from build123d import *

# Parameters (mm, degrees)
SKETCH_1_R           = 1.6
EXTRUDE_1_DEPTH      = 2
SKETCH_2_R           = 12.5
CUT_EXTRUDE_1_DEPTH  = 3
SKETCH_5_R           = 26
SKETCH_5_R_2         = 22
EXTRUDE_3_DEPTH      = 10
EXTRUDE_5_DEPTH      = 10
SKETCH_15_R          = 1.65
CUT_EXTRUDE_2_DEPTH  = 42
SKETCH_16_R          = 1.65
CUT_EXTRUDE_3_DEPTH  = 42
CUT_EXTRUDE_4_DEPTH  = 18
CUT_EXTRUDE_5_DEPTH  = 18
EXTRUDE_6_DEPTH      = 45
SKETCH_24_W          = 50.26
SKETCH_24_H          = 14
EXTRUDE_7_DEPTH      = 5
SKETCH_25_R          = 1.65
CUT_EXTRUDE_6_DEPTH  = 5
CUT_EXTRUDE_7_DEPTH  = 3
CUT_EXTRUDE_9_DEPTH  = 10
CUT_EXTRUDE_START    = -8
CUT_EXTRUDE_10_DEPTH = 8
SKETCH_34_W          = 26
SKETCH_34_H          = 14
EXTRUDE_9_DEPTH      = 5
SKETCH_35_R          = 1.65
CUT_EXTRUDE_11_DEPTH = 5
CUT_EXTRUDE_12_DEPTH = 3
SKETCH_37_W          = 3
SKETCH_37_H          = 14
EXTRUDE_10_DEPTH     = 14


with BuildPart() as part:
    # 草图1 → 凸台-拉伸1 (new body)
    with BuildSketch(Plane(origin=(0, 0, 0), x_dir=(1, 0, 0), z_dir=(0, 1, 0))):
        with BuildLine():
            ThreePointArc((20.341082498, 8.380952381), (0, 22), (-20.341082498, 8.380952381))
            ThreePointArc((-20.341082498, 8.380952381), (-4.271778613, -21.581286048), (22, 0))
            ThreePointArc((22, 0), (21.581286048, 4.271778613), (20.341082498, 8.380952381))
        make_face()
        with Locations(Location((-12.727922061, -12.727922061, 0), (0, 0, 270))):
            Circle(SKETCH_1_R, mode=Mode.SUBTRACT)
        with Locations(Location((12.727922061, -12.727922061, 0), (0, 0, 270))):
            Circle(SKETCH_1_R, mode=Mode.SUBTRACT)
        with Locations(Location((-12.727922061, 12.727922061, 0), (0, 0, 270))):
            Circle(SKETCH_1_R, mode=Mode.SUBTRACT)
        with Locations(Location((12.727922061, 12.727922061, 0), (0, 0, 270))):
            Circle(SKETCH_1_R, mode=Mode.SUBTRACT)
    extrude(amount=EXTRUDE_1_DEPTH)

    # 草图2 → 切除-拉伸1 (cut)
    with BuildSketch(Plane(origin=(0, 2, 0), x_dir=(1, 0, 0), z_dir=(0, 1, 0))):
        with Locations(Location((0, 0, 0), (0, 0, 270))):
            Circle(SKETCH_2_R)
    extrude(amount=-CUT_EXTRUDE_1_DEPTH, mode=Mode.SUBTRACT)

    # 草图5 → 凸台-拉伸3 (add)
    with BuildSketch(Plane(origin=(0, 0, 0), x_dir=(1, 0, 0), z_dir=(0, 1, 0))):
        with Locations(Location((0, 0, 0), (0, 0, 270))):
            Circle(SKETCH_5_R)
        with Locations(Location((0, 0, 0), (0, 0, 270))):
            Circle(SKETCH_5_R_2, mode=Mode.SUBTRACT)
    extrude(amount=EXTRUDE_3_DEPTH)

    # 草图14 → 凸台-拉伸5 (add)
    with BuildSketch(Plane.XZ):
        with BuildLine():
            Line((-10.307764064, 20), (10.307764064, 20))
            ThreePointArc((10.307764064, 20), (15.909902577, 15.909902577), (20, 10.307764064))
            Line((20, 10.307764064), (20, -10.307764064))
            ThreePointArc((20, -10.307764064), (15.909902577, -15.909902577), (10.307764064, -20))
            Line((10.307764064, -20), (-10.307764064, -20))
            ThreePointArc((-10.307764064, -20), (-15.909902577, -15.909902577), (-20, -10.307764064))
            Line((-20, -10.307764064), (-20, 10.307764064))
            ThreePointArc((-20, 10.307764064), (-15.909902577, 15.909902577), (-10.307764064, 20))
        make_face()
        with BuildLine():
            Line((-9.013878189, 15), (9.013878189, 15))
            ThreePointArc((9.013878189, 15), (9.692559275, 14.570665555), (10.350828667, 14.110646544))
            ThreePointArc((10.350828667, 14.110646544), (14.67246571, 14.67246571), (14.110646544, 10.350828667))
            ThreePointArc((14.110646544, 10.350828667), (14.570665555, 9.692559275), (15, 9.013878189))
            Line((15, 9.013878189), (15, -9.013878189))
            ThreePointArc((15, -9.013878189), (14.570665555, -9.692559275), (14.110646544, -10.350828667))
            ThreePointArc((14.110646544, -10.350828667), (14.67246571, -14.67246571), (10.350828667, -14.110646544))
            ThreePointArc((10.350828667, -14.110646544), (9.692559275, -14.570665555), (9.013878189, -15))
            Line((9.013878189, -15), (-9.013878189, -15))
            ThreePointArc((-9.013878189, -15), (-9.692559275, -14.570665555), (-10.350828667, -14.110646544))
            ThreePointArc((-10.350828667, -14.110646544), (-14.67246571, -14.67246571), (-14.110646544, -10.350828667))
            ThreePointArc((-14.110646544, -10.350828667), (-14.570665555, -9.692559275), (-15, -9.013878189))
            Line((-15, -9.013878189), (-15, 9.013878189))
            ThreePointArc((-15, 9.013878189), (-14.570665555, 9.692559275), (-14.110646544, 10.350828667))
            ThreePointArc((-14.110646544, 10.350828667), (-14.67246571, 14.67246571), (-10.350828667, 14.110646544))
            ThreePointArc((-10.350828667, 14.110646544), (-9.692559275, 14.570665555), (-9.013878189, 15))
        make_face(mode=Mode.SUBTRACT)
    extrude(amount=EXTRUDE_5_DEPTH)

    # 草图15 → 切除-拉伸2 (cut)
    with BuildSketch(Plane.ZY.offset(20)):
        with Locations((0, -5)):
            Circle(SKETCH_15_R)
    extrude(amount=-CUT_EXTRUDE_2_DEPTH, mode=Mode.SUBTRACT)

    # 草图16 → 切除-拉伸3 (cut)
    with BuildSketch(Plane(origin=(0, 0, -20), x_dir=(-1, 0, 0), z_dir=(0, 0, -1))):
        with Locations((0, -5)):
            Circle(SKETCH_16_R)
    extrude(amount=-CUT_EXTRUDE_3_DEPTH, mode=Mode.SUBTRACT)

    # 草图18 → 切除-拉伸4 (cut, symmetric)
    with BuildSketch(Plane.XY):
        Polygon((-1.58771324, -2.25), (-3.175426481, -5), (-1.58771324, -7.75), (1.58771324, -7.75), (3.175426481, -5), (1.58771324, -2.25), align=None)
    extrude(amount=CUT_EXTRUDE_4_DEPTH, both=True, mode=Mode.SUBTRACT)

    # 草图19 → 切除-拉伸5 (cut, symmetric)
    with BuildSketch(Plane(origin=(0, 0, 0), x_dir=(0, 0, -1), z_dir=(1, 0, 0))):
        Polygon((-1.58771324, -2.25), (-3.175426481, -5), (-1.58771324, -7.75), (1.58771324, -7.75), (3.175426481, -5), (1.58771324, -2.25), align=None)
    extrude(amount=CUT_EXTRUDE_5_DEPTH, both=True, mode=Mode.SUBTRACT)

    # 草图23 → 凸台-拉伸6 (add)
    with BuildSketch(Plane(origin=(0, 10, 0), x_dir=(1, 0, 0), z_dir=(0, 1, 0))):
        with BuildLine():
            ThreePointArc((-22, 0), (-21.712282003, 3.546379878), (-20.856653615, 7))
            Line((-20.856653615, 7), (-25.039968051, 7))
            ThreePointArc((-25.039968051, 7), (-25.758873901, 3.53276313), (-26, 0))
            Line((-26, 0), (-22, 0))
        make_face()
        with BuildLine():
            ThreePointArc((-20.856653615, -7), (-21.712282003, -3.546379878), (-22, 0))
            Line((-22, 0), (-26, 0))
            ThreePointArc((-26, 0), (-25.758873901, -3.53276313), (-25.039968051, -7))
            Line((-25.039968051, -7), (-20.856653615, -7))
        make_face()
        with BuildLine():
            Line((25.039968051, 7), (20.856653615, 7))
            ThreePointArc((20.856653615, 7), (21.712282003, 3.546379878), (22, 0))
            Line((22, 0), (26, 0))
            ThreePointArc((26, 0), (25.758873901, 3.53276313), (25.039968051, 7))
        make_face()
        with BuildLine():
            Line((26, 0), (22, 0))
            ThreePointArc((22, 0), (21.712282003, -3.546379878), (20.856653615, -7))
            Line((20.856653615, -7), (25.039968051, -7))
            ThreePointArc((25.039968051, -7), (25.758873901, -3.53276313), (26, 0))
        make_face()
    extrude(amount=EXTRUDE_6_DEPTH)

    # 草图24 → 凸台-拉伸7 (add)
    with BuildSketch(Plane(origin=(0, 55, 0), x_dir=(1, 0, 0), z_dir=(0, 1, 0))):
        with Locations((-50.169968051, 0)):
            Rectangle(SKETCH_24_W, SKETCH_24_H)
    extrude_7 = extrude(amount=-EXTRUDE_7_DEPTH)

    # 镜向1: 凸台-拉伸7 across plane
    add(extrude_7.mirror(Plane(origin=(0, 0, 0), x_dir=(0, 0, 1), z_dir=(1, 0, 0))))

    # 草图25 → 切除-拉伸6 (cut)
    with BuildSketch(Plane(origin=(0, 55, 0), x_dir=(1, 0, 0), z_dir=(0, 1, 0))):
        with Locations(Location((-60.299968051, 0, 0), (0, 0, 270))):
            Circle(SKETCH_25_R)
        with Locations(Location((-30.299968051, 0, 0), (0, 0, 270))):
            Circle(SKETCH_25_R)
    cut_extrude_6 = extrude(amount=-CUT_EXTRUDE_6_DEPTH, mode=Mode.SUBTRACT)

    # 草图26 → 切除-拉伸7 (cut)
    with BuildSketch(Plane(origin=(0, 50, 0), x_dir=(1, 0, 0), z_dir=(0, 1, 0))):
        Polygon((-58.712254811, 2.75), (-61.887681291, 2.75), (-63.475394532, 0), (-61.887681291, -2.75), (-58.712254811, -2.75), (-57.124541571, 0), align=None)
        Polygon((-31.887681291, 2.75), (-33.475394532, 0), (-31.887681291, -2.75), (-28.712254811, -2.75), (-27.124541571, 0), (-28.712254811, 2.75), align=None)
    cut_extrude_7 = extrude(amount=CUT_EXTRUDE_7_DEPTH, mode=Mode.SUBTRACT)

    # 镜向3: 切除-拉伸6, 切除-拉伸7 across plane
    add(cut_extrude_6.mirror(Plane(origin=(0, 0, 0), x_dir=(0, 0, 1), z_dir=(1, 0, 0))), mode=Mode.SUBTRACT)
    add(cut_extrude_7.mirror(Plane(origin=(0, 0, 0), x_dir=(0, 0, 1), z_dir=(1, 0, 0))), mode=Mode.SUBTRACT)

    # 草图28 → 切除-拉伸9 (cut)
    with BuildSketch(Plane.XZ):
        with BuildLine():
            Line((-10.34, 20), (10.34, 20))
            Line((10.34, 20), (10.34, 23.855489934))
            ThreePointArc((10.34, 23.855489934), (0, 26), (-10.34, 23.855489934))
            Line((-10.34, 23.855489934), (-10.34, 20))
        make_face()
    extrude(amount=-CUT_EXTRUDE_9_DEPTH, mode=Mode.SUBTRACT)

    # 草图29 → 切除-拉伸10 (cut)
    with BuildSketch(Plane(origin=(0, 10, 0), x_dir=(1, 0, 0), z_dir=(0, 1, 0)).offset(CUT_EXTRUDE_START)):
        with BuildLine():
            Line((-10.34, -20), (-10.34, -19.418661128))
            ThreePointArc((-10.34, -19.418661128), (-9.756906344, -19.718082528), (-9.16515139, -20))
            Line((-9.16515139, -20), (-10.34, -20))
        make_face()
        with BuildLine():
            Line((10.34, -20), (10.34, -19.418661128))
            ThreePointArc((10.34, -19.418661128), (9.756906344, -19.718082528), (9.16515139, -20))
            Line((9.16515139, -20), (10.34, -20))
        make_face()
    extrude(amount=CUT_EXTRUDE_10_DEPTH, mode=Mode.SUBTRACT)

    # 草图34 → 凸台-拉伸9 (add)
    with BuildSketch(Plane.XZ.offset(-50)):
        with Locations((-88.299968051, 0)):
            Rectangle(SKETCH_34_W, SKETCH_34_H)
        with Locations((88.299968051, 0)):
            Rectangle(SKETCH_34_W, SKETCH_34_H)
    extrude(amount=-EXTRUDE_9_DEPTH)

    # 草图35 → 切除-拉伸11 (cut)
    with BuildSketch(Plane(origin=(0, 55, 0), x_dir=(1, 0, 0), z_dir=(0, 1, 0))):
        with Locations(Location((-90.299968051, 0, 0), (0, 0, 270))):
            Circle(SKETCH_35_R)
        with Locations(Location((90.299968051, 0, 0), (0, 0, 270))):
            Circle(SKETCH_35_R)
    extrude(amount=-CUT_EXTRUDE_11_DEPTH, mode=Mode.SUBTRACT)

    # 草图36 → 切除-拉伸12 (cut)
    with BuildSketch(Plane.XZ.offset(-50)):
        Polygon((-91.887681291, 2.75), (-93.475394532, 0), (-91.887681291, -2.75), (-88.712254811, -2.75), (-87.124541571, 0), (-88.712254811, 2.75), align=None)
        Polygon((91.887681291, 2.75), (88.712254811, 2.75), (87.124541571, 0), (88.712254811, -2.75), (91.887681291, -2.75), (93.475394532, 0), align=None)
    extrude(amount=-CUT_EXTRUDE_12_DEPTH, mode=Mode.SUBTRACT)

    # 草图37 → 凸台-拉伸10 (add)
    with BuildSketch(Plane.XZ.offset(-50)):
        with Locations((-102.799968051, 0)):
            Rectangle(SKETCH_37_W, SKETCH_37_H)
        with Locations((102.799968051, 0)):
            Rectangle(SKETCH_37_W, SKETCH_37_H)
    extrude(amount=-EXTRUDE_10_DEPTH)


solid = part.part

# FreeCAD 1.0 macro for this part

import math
import FreeCAD as App
import Part
import Sketcher
from FreeCAD import Vector
Q = App.Units.Quantity

doc = App.newDocument("Part")
body = doc.addObject("PartDesign::Body", "Body")

# Sketch on XZ plane
sketch1 = body.newObject("Sketcher::SketchObject", "Sketch")
sketch1.AttachmentSupport = (doc.getObject("XZ_Plane"), [""])
sketch1.MapMode = "FlatFace"
sketch1.addGeometry(Part.ArcOfCircle(Part.Circle(Vector(0, 0, 0), Vector(0, 0, 1), 22), math.radians(-158), math.radians(-22)), False)
sketch1.addGeometry(Part.ArcOfCircle(Part.Circle(Vector(0, 0, 0), Vector(0, 0, 1), 22), math.radians(0), math.radians(202)), False)
sketch1.addGeometry(Part.ArcOfCircle(Part.Circle(Vector(0, 0, 0), Vector(0, 0, 1), 22), math.radians(-22), math.radians(0)), False)
sketch1.addGeometry(Part.Circle(Vector(-12.7, 12.7, 0), Vector(0, 0, 1), 1.6), False)
sketch1.addGeometry(Part.Circle(Vector(12.7, 12.7, 0), Vector(0, 0, 1), 1.6), False)
sketch1.addGeometry(Part.Circle(Vector(-12.7, -12.7, 0), Vector(0, 0, 1), 1.6), False)
sketch1.addGeometry(Part.Circle(Vector(12.7, -12.7, 0), Vector(0, 0, 1), 1.6), False)
sketch1.addConstraint(Sketcher.Constraint("Tangent", 0, 1, 1, 2))
sketch1.addConstraint(Sketcher.Constraint("Tangent", 1, 1, 2, 2))
sketch1.addConstraint(Sketcher.Constraint("Tangent", 2, 1, 0, 2))
sketch1.addConstraint(Sketcher.Constraint("Coincident", 0, 3, -1, 1))
sketch1.addConstraint(Sketcher.Constraint("Equal", 3, 4))
sketch1.addConstraint(Sketcher.Constraint("Equal", 4, 5))
sketch1.addConstraint(Sketcher.Constraint("Equal", 5, 6))
sketch1.addConstraint(Sketcher.Constraint("Symmetric", 4, 3, 5, 3, -1, 1))
sketch1.addConstraint(Sketcher.Constraint("Symmetric", 3, 3, 6, 3, -1, 1))
sketch1.addConstraint(Sketcher.Constraint("Symmetric", 3, 3, 4, 3, -2))
sketch1.addConstraint(Sketcher.Constraint("PointOnObject", 1, 1, -1))
sketch1.addConstraint(Sketcher.Constraint("Horizontal", 0, 1, 2, 1))
sketch1.addConstraint(Sketcher.Constraint("Radius", 0, Q("22 mm")))
sketch1.addConstraint(Sketcher.Constraint("Diameter", 3, Q("3.2 mm")))
sketch1.addConstraint(Sketcher.Constraint("DistanceX", 0, 1, 5, 3, Q("7.61316 mm")))
sketch1.addConstraint(Sketcher.Constraint("DistanceY", 5, 3, 0, 1, Q("4.34697 mm")))
sketch1.addConstraint(Sketcher.Constraint("DistanceX", 3, 3, -1, 1, Q("12.727922 mm")))
pad1 = body.newObject("PartDesign::Pad", "Pad")
pad1.Profile = sketch1
pad1.Length = 2
pad1.Reversed = True

# Sketch on XZ plane
sketch2 = body.newObject("Sketcher::SketchObject", "Sketch001")
sketch2.AttachmentSupport = (doc.getObject("XZ_Plane"), [""])
sketch2.MapMode = "FlatFace"
sketch2.AttachmentOffset = App.Placement(Vector(0, 0, -2), App.Rotation())
sketch2.addGeometry(Part.Circle(Vector(0, 0, 0), Vector(0, 0, 1), 12), False)
sketch2.addConstraint(Sketcher.Constraint("Coincident", 0, 3, -1, 1))
sketch2.addConstraint(Sketcher.Constraint("Diameter", 0, Q("25 mm")))
pocket1 = body.newObject("PartDesign::Pocket", "Pocket")
pocket1.Profile = sketch2
pocket1.Length = 3
pocket1.Reversed = True

# Sketch on XZ plane
sketch3 = body.newObject("Sketcher::SketchObject", "Sketch002")
sketch3.AttachmentSupport = (doc.getObject("XZ_Plane"), [""])
sketch3.MapMode = "FlatFace"
sketch3.addGeometry(Part.Circle(Vector(0, 0, 0), Vector(0, 0, 1), 26), False)
sketch3.addGeometry(Part.Circle(Vector(0, 0, 0), Vector(0, 0, 1), 22), False)
sketch3.addConstraint(Sketcher.Constraint("Coincident", 0, 3, -1, 1))
sketch3.addConstraint(Sketcher.Constraint("Coincident", 1, 3, -1, 1))
sketch3.addConstraint(Sketcher.Constraint("Diameter", 0, Q("52 mm")))
sketch3.addConstraint(Sketcher.Constraint("Diameter", 1, Q("44 mm")))
pad2 = body.newObject("PartDesign::Pad", "Pad001")
pad2.Profile = sketch3
pad2.Length = 10
pad2.Reversed = True

# Sketch on XZ plane
sketch4 = body.newObject("Sketcher::SketchObject", "Sketch003")
sketch4.AttachmentSupport = (doc.getObject("XZ_Plane"), [""])
sketch4.MapMode = "FlatFace"
sketch4.addGeometry(Part.LineSegment(Vector(10.3, 20, 0), Vector(-10.3, 20, 0)), False)
sketch4.addGeometry(Part.ArcOfCircle(Part.Circle(Vector(0, 0, 0), Vector(0, 0, 1), 22.5), math.radians(117), math.radians(153)), False)
sketch4.addGeometry(Part.LineSegment(Vector(-20, 10.3, 0), Vector(-20, -10.3, 0)), False)
sketch4.addGeometry(Part.ArcOfCircle(Part.Circle(Vector(0, 0, 0), Vector(0, 0, 1), 22.5), math.radians(-153), math.radians(-117)), False)
sketch4.addGeometry(Part.LineSegment(Vector(-10.3, -20, 0), Vector(10.3, -20, 0)), False)
sketch4.addGeometry(Part.ArcOfCircle(Part.Circle(Vector(0, 0, 0), Vector(0, 0, 1), 22.5), math.radians(-63), math.radians(-27)), False)
sketch4.addGeometry(Part.LineSegment(Vector(20, -10.3, 0), Vector(20, 10.3, 0)), False)
sketch4.addGeometry(Part.ArcOfCircle(Part.Circle(Vector(0, 0, 0), Vector(0, 0, 1), 22.5), math.radians(27), math.radians(63)), False)
sketch4.addGeometry(Part.LineSegment(Vector(-9, 15, 0), Vector(9, 15, 0)), False)
sketch4.addGeometry(Part.ArcOfCircle(Part.Circle(Vector(0, 0, 0), Vector(0, 0, 1), 17.5), math.radians(53.74), math.radians(59)), False)
sketch4.addGeometry(Part.ArcOfCircle(Part.Circle(Vector(12.7, 12.7, 0), Vector(0, 0, 1), 2.8), math.radians(-60), math.radians(150)), False)
sketch4.addGeometry(Part.ArcOfCircle(Part.Circle(Vector(0, 0, 0), Vector(0, 0, 1), 17.5), math.radians(31), math.radians(36.26)), False)
sketch4.addGeometry(Part.LineSegment(Vector(15, 9, 0), Vector(15, -9, 0)), False)
sketch4.addGeometry(Part.ArcOfCircle(Part.Circle(Vector(0, 0, 0), Vector(0, 0, 1), 17.5), math.radians(-36.26), math.radians(-31)), False)
sketch4.addGeometry(Part.ArcOfCircle(Part.Circle(Vector(12.7, -12.7, 0), Vector(0, 0, 1), 2.8), math.radians(-150), math.radians(60)), False)
sketch4.addGeometry(Part.ArcOfCircle(Part.Circle(Vector(0, 0, 0), Vector(0, 0, 1), 17.5), math.radians(-59), math.radians(-53.74)), False)
sketch4.addGeometry(Part.LineSegment(Vector(9, -15, 0), Vector(-9, -15, 0)), False)
sketch4.addGeometry(Part.ArcOfCircle(Part.Circle(Vector(0, 0, 0), Vector(0, 0, 1), 17.5), math.radians(-126.26), math.radians(-121)), False)
sketch4.addGeometry(Part.ArcOfCircle(Part.Circle(Vector(-12.7, -12.7, 0), Vector(0, 0, 1), 2.8), math.radians(120), math.radians(330)), False)
sketch4.addGeometry(Part.ArcOfCircle(Part.Circle(Vector(0, 0, 0), Vector(0, 0, 1), 17.5), math.radians(-149), math.radians(-143.74)), False)
sketch4.addGeometry(Part.LineSegment(Vector(-15, -9, 0), Vector(-15, 9, 0)), False)
sketch4.addGeometry(Part.ArcOfCircle(Part.Circle(Vector(0, 0, 0), Vector(0, 0, 1), 17.5), math.radians(143.74), math.radians(149)), False)
sketch4.addGeometry(Part.ArcOfCircle(Part.Circle(Vector(-12.7, 12.7, 0), Vector(0, 0, 1), 2.8), math.radians(30), math.radians(240)), False)
sketch4.addGeometry(Part.ArcOfCircle(Part.Circle(Vector(0, 0, 0), Vector(0, 0, 1), 17.5), math.radians(121), math.radians(126.26)), False)
sketch4.addConstraint(Sketcher.Constraint("Coincident", 0, 2, 1, 1))
sketch4.addConstraint(Sketcher.Constraint("Coincident", 1, 2, 2, 1))
sketch4.addConstraint(Sketcher.Constraint("Coincident", 2, 2, 3, 1))
sketch4.addConstraint(Sketcher.Constraint("Coincident", 3, 2, 4, 1))
sketch4.addConstraint(Sketcher.Constraint("Coincident", 4, 2, 5, 1))
sketch4.addConstraint(Sketcher.Constraint("Coincident", 5, 2, 6, 1))
sketch4.addConstraint(Sketcher.Constraint("Coincident", 6, 2, 7, 1))
sketch4.addConstraint(Sketcher.Constraint("Coincident", 7, 2, 0, 1))
sketch4.addConstraint(Sketcher.Constraint("Coincident", 8, 2, 9, 2))
sketch4.addConstraint(Sketcher.Constraint("Coincident", 9, 1, 10, 2))
sketch4.addConstraint(Sketcher.Constraint("Coincident", 10, 1, 11, 2))
sketch4.addConstraint(Sketcher.Constraint("Coincident", 11, 1, 12, 1))
sketch4.addConstraint(Sketcher.Constraint("Coincident", 12, 2, 13, 2))
sketch4.addConstraint(Sketcher.Constraint("Coincident", 13, 1, 14, 2))
sketch4.addConstraint(Sketcher.Constraint("Coincident", 14, 1, 15, 2))
sketch4.addConstraint(Sketcher.Constraint("Coincident", 15, 1, 16, 1))
sketch4.addConstraint(Sketcher.Constraint("Coincident", 16, 2, 17, 2))
sketch4.addConstraint(Sketcher.Constraint("Coincident", 17, 1, 18, 2))
sketch4.addConstraint(Sketcher.Constraint("Coincident", 18, 1, 19, 2))
sketch4.addConstraint(Sketcher.Constraint("Coincident", 19, 1, 20, 1))
sketch4.addConstraint(Sketcher.Constraint("Coincident", 20, 2, 21, 2))
sketch4.addConstraint(Sketcher.Constraint("Coincident", 21, 1, 22, 2))
sketch4.addConstraint(Sketcher.Constraint("Coincident", 22, 1, 23, 2))
sketch4.addConstraint(Sketcher.Constraint("Coincident", 23, 1, 8, 1))
sketch4.addConstraint(Sketcher.Constraint("Horizontal", 0))
sketch4.addConstraint(Sketcher.Constraint("Vertical", 2))
sketch4.addConstraint(Sketcher.Constraint("Horizontal", 4))
sketch4.addConstraint(Sketcher.Constraint("Vertical", 6))
sketch4.addConstraint(Sketcher.Constraint("Horizontal", 8))
sketch4.addConstraint(Sketcher.Constraint("Vertical", 12))
sketch4.addConstraint(Sketcher.Constraint("Horizontal", 16))
sketch4.addConstraint(Sketcher.Constraint("Vertical", 20))
sketch4.addConstraint(Sketcher.Constraint("Coincident", 1, 3, -1, 1))
sketch4.addConstraint(Sketcher.Constraint("Coincident", 3, 3, -1, 1))
sketch4.addConstraint(Sketcher.Constraint("Coincident", 5, 3, -1, 1))
sketch4.addConstraint(Sketcher.Constraint("Coincident", 7, 3, -1, 1))
sketch4.addConstraint(Sketcher.Constraint("Coincident", 9, 3, -1, 1))
sketch4.addConstraint(Sketcher.Constraint("Coincident", 11, 3, -1, 1))
sketch4.addConstraint(Sketcher.Constraint("Coincident", 13, 3, -1, 1))
sketch4.addConstraint(Sketcher.Constraint("Coincident", 15, 3, -1, 1))
sketch4.addConstraint(Sketcher.Constraint("Coincident", 17, 3, -1, 1))
sketch4.addConstraint(Sketcher.Constraint("Coincident", 19, 3, -1, 1))
sketch4.addConstraint(Sketcher.Constraint("Coincident", 21, 3, -1, 1))
sketch4.addConstraint(Sketcher.Constraint("Coincident", 23, 3, -1, 1))
sketch4.addConstraint(Sketcher.Constraint("Equal", 1, 3))
sketch4.addConstraint(Sketcher.Constraint("Equal", 3, 5))
sketch4.addConstraint(Sketcher.Constraint("Equal", 5, 7))
sketch4.addConstraint(Sketcher.Constraint("Equal", 9, 11))
sketch4.addConstraint(Sketcher.Constraint("Equal", 11, 13))
sketch4.addConstraint(Sketcher.Constraint("Equal", 10, 14))
sketch4.addConstraint(Sketcher.Constraint("Equal", 13, 15))
sketch4.addConstraint(Sketcher.Constraint("Equal", 15, 17))
sketch4.addConstraint(Sketcher.Constraint("Equal", 14, 18))
sketch4.addConstraint(Sketcher.Constraint("Equal", 17, 19))
sketch4.addConstraint(Sketcher.Constraint("Equal", 19, 21))
sketch4.addConstraint(Sketcher.Constraint("Equal", 18, 22))
sketch4.addConstraint(Sketcher.Constraint("Equal", 21, 23))
sketch4.addConstraint(Sketcher.Constraint("Symmetric", 10, 3, 18, 3, -1, 1))
sketch4.addConstraint(Sketcher.Constraint("Symmetric", 14, 3, 22, 3, -1, 1))
sketch4.addConstraint(Sketcher.Constraint("Symmetric", 14, 3, 18, 3, -2))
sketch4.addConstraint(Sketcher.Constraint("Horizontal", 2, 2, 5, 2))
sketch4.addConstraint(Sketcher.Constraint("Horizontal", 12, 2, 19, 1))
sketch4.addConstraint(Sketcher.Constraint("Vertical", 0, 2, 3, 2))
sketch4.addConstraint(Sketcher.Constraint("Vertical", 8, 2, 15, 1))
sketch4.addConstraint(Sketcher.Constraint("Equal", 4, 2))
sketch4.addConstraint(Sketcher.Constraint("Equal", 16, 12))
sketch4.addConstraint(Sketcher.Constraint("Radius", 1, Q("22.5 mm")))
sketch4.addConstraint(Sketcher.Constraint("Radius", 9, Q("17.499999 mm")))
sketch4.addConstraint(Sketcher.Constraint("Radius", 10, Q("2.75 mm")))
sketch4.addConstraint(Sketcher.Constraint("DistanceY", -1, 1, 0, 2, Q("20 mm")))
sketch4.addConstraint(Sketcher.Constraint("DistanceY", -1, 1, 8, 2, Q("15 mm")))
sketch4.addConstraint(Sketcher.Constraint("DistanceX", -1, 1, 9, 1, Q("10.350829 mm")))
sketch4.addConstraint(Sketcher.Constraint("DistanceY", -1, 1, 10, 1, Q("10.350829 mm")))
pad3 = body.newObject("PartDesign::Pad", "Pad002")
pad3.Profile = sketch4
pad3.Length = 10

# Sketch on YZ plane
sketch5 = body.newObject("Sketcher::SketchObject", "Sketch004")
sketch5.AttachmentSupport = (doc.getObject("YZ_Plane"), [""])
sketch5.MapMode = "FlatFace"
sketch5.AttachmentOffset = App.Placement(Vector(0, 0, -20), App.Rotation())
sketch5.addGeometry(Part.Circle(Vector(-5, 0, 0), Vector(0, 0, 1), 1.6), False)
sketch5.addConstraint(Sketcher.Constraint("PointOnObject", 0, 3, -1))
sketch5.addConstraint(Sketcher.Constraint("Diameter", 0, Q("3.3 mm")))
sketch5.addConstraint(Sketcher.Constraint("DistanceX", 0, 3, -1, 1, Q("5 mm")))
pocket2 = body.newObject("PartDesign::Pocket", "Pocket001")
pocket2.Profile = sketch5
pocket2.Length = 42
pocket2.Reversed = True

# Sketch on XY plane
sketch6 = body.newObject("Sketcher::SketchObject", "Sketch005")
sketch6.AttachmentSupport = (doc.getObject("XY_Plane"), [""])
sketch6.MapMode = "FlatFace"
sketch6.AttachmentOffset = App.Placement(Vector(0, 0, -20), App.Rotation())
sketch6.addGeometry(Part.Circle(Vector(0, -5, 0), Vector(0, 0, 1), 1.6), False)
sketch6.addConstraint(Sketcher.Constraint("PointOnObject", 0, 3, -2))
sketch6.addConstraint(Sketcher.Constraint("Diameter", 0, Q("3.3 mm")))
sketch6.addConstraint(Sketcher.Constraint("DistanceY", 0, 3, -1, 1, Q("5 mm")))
pocket3 = body.newObject("PartDesign::Pocket", "Pocket002")
pocket3.Profile = sketch6
pocket3.Length = 42
pocket3.Reversed = True

# Sketch on XY plane
sketch7 = body.newObject("Sketcher::SketchObject", "Sketch006")
sketch7.AttachmentSupport = (doc.getObject("XY_Plane"), [""])
sketch7.MapMode = "FlatFace"
sketch7.addGeometry(Part.LineSegment(Vector(-1.6, -2.2, 0), Vector(-3.2, -5, 0)), False)
sketch7.addGeometry(Part.LineSegment(Vector(-3.2, -5, 0), Vector(-1.6, -7.8, 0)), False)
sketch7.addGeometry(Part.LineSegment(Vector(-1.6, -7.8, 0), Vector(1.6, -7.8, 0)), False)
sketch7.addGeometry(Part.LineSegment(Vector(1.6, -7.8, 0), Vector(3.2, -5, 0)), False)
sketch7.addGeometry(Part.LineSegment(Vector(3.2, -5, 0), Vector(1.6, -2.2, 0)), False)
sketch7.addGeometry(Part.LineSegment(Vector(1.6, -2.2, 0), Vector(-1.6, -2.2, 0)), False)
sketch7.addConstraint(Sketcher.Constraint("Coincident", 0, 2, 1, 1))
sketch7.addConstraint(Sketcher.Constraint("Coincident", 1, 2, 2, 1))
sketch7.addConstraint(Sketcher.Constraint("Coincident", 2, 2, 3, 1))
sketch7.addConstraint(Sketcher.Constraint("Coincident", 3, 2, 4, 1))
sketch7.addConstraint(Sketcher.Constraint("Coincident", 4, 2, 5, 1))
sketch7.addConstraint(Sketcher.Constraint("Coincident", 5, 2, 0, 1))
sketch7.addConstraint(Sketcher.Constraint("Horizontal", 2))
sketch7.addConstraint(Sketcher.Constraint("Horizontal", 5))
sketch7.addConstraint(Sketcher.Constraint("Symmetric", 0, 2, 3, 2, -2))
sketch7.addConstraint(Sketcher.Constraint("Parallel", 0, 3))
sketch7.addConstraint(Sketcher.Constraint("Parallel", 1, 4))
sketch7.addConstraint(Sketcher.Constraint("Vertical", 2, 2, 4, 2))
sketch7.addConstraint(Sketcher.Constraint("Vertical", 1, 2, 5, 2))
sketch7.addConstraint(Sketcher.Constraint("Angle", 0, Q("-120 deg")))
sketch7.addConstraint(Sketcher.Constraint("DistanceY", 0, 2, -1, 1, Q("5 mm")))
sketch7.addConstraint(Sketcher.Constraint("DistanceY", 2, 2, 4, 2, Q("5.5 mm")))
sketch7.addConstraint(Sketcher.Constraint("DistanceX", 2, 1, 2, 2, Q("3.175426 mm")))
pocket4 = body.newObject("PartDesign::Pocket", "Pocket003")
pocket4.Profile = sketch7
pocket4.Length = 36
pocket4.Midplane = True

# Sketch on YZ plane
sketch8 = body.newObject("Sketcher::SketchObject", "Sketch007")
sketch8.AttachmentSupport = (doc.getObject("YZ_Plane"), [""])
sketch8.MapMode = "FlatFace"
sketch8.addGeometry(Part.LineSegment(Vector(-2.2, 1.6, 0), Vector(-5, 3.2, 0)), False)
sketch8.addGeometry(Part.LineSegment(Vector(-5, 3.2, 0), Vector(-7.8, 1.6, 0)), False)
sketch8.addGeometry(Part.LineSegment(Vector(-7.8, 1.6, 0), Vector(-7.8, -1.6, 0)), False)
sketch8.addGeometry(Part.LineSegment(Vector(-7.8, -1.6, 0), Vector(-5, -3.2, 0)), False)
sketch8.addGeometry(Part.LineSegment(Vector(-5, -3.2, 0), Vector(-2.2, -1.6, 0)), False)
sketch8.addGeometry(Part.LineSegment(Vector(-2.2, -1.6, 0), Vector(-2.2, 1.6, 0)), False)
sketch8.addConstraint(Sketcher.Constraint("Coincident", 0, 2, 1, 1))
sketch8.addConstraint(Sketcher.Constraint("Coincident", 1, 2, 2, 1))
sketch8.addConstraint(Sketcher.Constraint("Coincident", 2, 2, 3, 1))
sketch8.addConstraint(Sketcher.Constraint("Coincident", 3, 2, 4, 1))
sketch8.addConstraint(Sketcher.Constraint("Coincident", 4, 2, 5, 1))
sketch8.addConstraint(Sketcher.Constraint("Coincident", 5, 2, 0, 1))
sketch8.addConstraint(Sketcher.Constraint("Vertical", 2))
sketch8.addConstraint(Sketcher.Constraint("Vertical", 5))
sketch8.addConstraint(Sketcher.Constraint("Symmetric", 0, 2, 3, 2, -1))
sketch8.addConstraint(Sketcher.Constraint("Parallel", 0, 3))
sketch8.addConstraint(Sketcher.Constraint("Parallel", 1, 4))
sketch8.addConstraint(Sketcher.Constraint("Horizontal", 2, 2, 4, 2))
sketch8.addConstraint(Sketcher.Constraint("Horizontal", 1, 2, 5, 2))
sketch8.addConstraint(Sketcher.Constraint("Angle", 0, Q("150 deg")))
sketch8.addConstraint(Sketcher.Constraint("DistanceX", 0, 2, -1, 1, Q("5 mm")))
sketch8.addConstraint(Sketcher.Constraint("DistanceX", 2, 2, 4, 2, Q("5.5 mm")))
sketch8.addConstraint(Sketcher.Constraint("DistanceY", 2, 2, 2, 1, Q("3.175426 mm")))
pocket5 = body.newObject("PartDesign::Pocket", "Pocket004")
pocket5.Profile = sketch8
pocket5.Length = 36
pocket5.Midplane = True

# Sketch on XZ plane
sketch9 = body.newObject("Sketcher::SketchObject", "Sketch008")
sketch9.AttachmentSupport = (doc.getObject("XZ_Plane"), [""])
sketch9.MapMode = "FlatFace"
sketch9.AttachmentOffset = App.Placement(Vector(0, 0, -10), App.Rotation())
sketch9.addGeometry(Part.ArcOfCircle(Part.Circle(Vector(0, 0, 0), Vector(0, 0, 1), 22), math.radians(180), math.radians(198.55)), False)
sketch9.addGeometry(Part.LineSegment(Vector(-20.9, -7, 0), Vector(-25, -7, 0)), False)
sketch9.addGeometry(Part.ArcOfCircle(Part.Circle(Vector(0, 0, 0), Vector(0, 0, 1), 26), math.radians(-180), math.radians(-164.38)), False)
sketch9.addGeometry(Part.ArcOfCircle(Part.Circle(Vector(0, 0, 0), Vector(0, 0, 1), 26), math.radians(164.38), math.radians(180)), False)
sketch9.addGeometry(Part.LineSegment(Vector(-25, 7, 0), Vector(-20.9, 7, 0)), False)
sketch9.addGeometry(Part.ArcOfCircle(Part.Circle(Vector(0, 0, 0), Vector(0, 0, 1), 22), math.radians(161.45), math.radians(180)), False)
sketch9.addGeometry(Part.LineSegment(Vector(25, -7, 0), Vector(20.9, -7, 0)), False)
sketch9.addGeometry(Part.ArcOfCircle(Part.Circle(Vector(0, 0, 0), Vector(0, 0, 1), 22), math.radians(-18.55), math.radians(0)), False)
sketch9.addGeometry(Part.ArcOfCircle(Part.Circle(Vector(0, 0, 0), Vector(0, 0, 1), 22), math.radians(0), math.radians(18.55)), False)
sketch9.addGeometry(Part.LineSegment(Vector(20.9, 7, 0), Vector(25, 7, 0)), False)
sketch9.addGeometry(Part.ArcOfCircle(Part.Circle(Vector(0, 0, 0), Vector(0, 0, 1), 26), math.radians(0), math.radians(15.62)), False)
sketch9.addGeometry(Part.ArcOfCircle(Part.Circle(Vector(0, 0, 0), Vector(0, 0, 1), 26), math.radians(-15.62), math.radians(0)), False)
sketch9.addConstraint(Sketcher.Constraint("Coincident", 0, 2, 1, 1))
sketch9.addConstraint(Sketcher.Constraint("Coincident", 1, 2, 2, 2))
sketch9.addConstraint(Sketcher.Constraint("Tangent", 2, 1, 3, 2))
sketch9.addConstraint(Sketcher.Constraint("Coincident", 3, 1, 4, 1))
sketch9.addConstraint(Sketcher.Constraint("Coincident", 4, 2, 5, 1))
sketch9.addConstraint(Sketcher.Constraint("Tangent", 5, 2, 0, 1))
sketch9.addConstraint(Sketcher.Constraint("Coincident", 6, 2, 7, 1))
sketch9.addConstraint(Sketcher.Constraint("Tangent", 7, 2, 8, 1))
sketch9.addConstraint(Sketcher.Constraint("Coincident", 8, 2, 9, 1))
sketch9.addConstraint(Sketcher.Constraint("Coincident", 9, 2, 10, 2))
sketch9.addConstraint(Sketcher.Constraint("Tangent", 10, 1, 11, 2))
sketch9.addConstraint(Sketcher.Constraint("Coincident", 11, 1, 6, 1))
sketch9.addConstraint(Sketcher.Constraint("Horizontal", 1))
sketch9.addConstraint(Sketcher.Constraint("Horizontal", 4))
sketch9.addConstraint(Sketcher.Constraint("Horizontal", 6))
sketch9.addConstraint(Sketcher.Constraint("Horizontal", 9))
sketch9.addConstraint(Sketcher.Constraint("Coincident", 0, 3, -1, 1))
sketch9.addConstraint(Sketcher.Constraint("Coincident", 2, 3, -1, 1))
sketch9.addConstraint(Sketcher.Constraint("Coincident", 7, 3, -1, 1))
sketch9.addConstraint(Sketcher.Constraint("Coincident", 10, 3, -1, 1))
sketch9.addConstraint(Sketcher.Constraint("Equal", 2, 3))
sketch9.addConstraint(Sketcher.Constraint("Equal", 0, 5))
sketch9.addConstraint(Sketcher.Constraint("Equal", 5, 7))
sketch9.addConstraint(Sketcher.Constraint("Equal", 7, 8))
sketch9.addConstraint(Sketcher.Constraint("Equal", 3, 10))
sketch9.addConstraint(Sketcher.Constraint("Equal", 10, 11))
sketch9.addConstraint(Sketcher.Constraint("PointOnObject", 2, 1, -1))
sketch9.addConstraint(Sketcher.Constraint("PointOnObject", 5, 2, -1))
sketch9.addConstraint(Sketcher.Constraint("PointOnObject", 7, 2, -1))
sketch9.addConstraint(Sketcher.Constraint("PointOnObject", 10, 1, -1))
sketch9.addConstraint(Sketcher.Constraint("Horizontal", 1, 2, 6, 2))
sketch9.addConstraint(Sketcher.Constraint("Horizontal", 4, 2, 8, 2))
sketch9.addConstraint(Sketcher.Constraint("Vertical", 1, 2, 3, 1))
sketch9.addConstraint(Sketcher.Constraint("Radius", 0, Q("22 mm")))
sketch9.addConstraint(Sketcher.Constraint("Radius", 2, Q("26 mm")))
sketch9.addConstraint(Sketcher.Constraint("DistanceY", 0, 2, -1, 1, Q("7 mm")))
pad4 = body.newObject("PartDesign::Pad", "Pad003")
pad4.Profile = sketch9
pad4.Length = 45
pad4.Reversed = True

# Sketch on XZ plane
sketch10 = body.newObject("Sketcher::SketchObject", "Sketch009")
sketch10.AttachmentSupport = (doc.getObject("XZ_Plane"), [""])
sketch10.MapMode = "FlatFace"
sketch10.AttachmentOffset = App.Placement(Vector(0, 0, -55), App.Rotation())
sketch10.addGeometry(Part.LineSegment(Vector(-75, -7, 0), Vector(-75, 7, 0)), False)
sketch10.addGeometry(Part.LineSegment(Vector(-75, 7, 0), Vector(-25, 7, 0)), False)
sketch10.addGeometry(Part.LineSegment(Vector(-25, 7, 0), Vector(-25, -7, 0)), False)
sketch10.addGeometry(Part.LineSegment(Vector(-25, -7, 0), Vector(-75, -7, 0)), False)
sketch10.addConstraint(Sketcher.Constraint("Coincident", 0, 2, 1, 1))
sketch10.addConstraint(Sketcher.Constraint("Coincident", 1, 2, 2, 1))
sketch10.addConstraint(Sketcher.Constraint("Coincident", 2, 2, 3, 1))
sketch10.addConstraint(Sketcher.Constraint("Coincident", 3, 2, 0, 1))
sketch10.addConstraint(Sketcher.Constraint("Vertical", 0))
sketch10.addConstraint(Sketcher.Constraint("Horizontal", 1))
sketch10.addConstraint(Sketcher.Constraint("Vertical", 2))
sketch10.addConstraint(Sketcher.Constraint("Horizontal", 3))
sketch10.addConstraint(Sketcher.Constraint("DistanceY", 0, 1, 0, 2, Q("14 mm")))
sketch10.addConstraint(Sketcher.Constraint("DistanceY", -1, 1, 0, 2, Q("7 mm")))
sketch10.addConstraint(Sketcher.Constraint("DistanceX", 1, 1, 1, 2, Q("50.26 mm")))
sketch10.addConstraint(Sketcher.Constraint("DistanceX", 0, 2, -1, 1, Q("75.299968 mm")))
pad5 = body.newObject("PartDesign::Pad", "Pad004")
pad5.Profile = sketch10
pad5.Length = 5
doc.recompute()

mirrored = body.newObject("PartDesign::Mirrored", "Mirrored")
mirrored.Originals = [pad5]
mirrored.MirrorPlane = (doc.getObject("YZ_Plane"), [""])
body.Tip = mirrored

# Sketch on XZ plane
sketch11 = body.newObject("Sketcher::SketchObject", "Sketch010")
sketch11.AttachmentSupport = (doc.getObject("XZ_Plane"), [""])
sketch11.MapMode = "FlatFace"
sketch11.AttachmentOffset = App.Placement(Vector(0, 0, -55), App.Rotation())
sketch11.addGeometry(Part.Circle(Vector(-60.299968, 0, 0), Vector(0, 0, 1), 1.65), False)
sketch11.addGeometry(Part.Circle(Vector(-30.299968, 0, 0), Vector(0, 0, 1), 1.65), False)
sketch11.addConstraint(Sketcher.Constraint("Equal", 0, 1))
sketch11.addConstraint(Sketcher.Constraint("PointOnObject", 0, 3, -1))
sketch11.addConstraint(Sketcher.Constraint("PointOnObject", 1, 3, -1))
sketch11.addConstraint(Sketcher.Constraint("Diameter", 0, Q("3.3 mm")))
sketch11.addConstraint(Sketcher.Constraint("DistanceX", 0, 3, 1, 3, Q("30 mm")))
sketch11.addConstraint(Sketcher.Constraint("DistanceX", 0, 3, -1, 1, Q("60.299968 mm")))
pocket6 = body.newObject("PartDesign::Pocket", "Pocket005")
pocket6.Profile = sketch11
pocket6.Length = 5
pocket6.Reversed = True

# Sketch on XZ plane
sketch12 = body.newObject("Sketcher::SketchObject", "Sketch011")
sketch12.AttachmentSupport = (doc.getObject("XZ_Plane"), [""])
sketch12.MapMode = "FlatFace"
sketch12.AttachmentOffset = App.Placement(Vector(0, 0, -50), App.Rotation())
sketch12.addGeometry(Part.LineSegment(Vector(-58.7, -2.8, 0), Vector(-61.9, -2.8, 0)), False)
sketch12.addGeometry(Part.LineSegment(Vector(-61.9, -2.8, 0), Vector(-63.5, 0, 0)), False)
sketch12.addGeometry(Part.LineSegment(Vector(-63.5, 0, 0), Vector(-61.9, 2.8, 0)), False)
sketch12.addGeometry(Part.LineSegment(Vector(-61.9, 2.8, 0), Vector(-58.7, 2.8, 0)), False)
sketch12.addGeometry(Part.LineSegment(Vector(-58.7, 2.8, 0), Vector(-57.1, 0, 0)), False)
sketch12.addGeometry(Part.LineSegment(Vector(-57.1, 0, 0), Vector(-58.7, -2.8, 0)), False)
sketch12.addGeometry(Part.LineSegment(Vector(-31.9, -2.8, 0), Vector(-33.5, 0, 0)), False)
sketch12.addGeometry(Part.LineSegment(Vector(-33.5, 0, 0), Vector(-31.9, 2.8, 0)), False)
sketch12.addGeometry(Part.LineSegment(Vector(-31.9, 2.8, 0), Vector(-28.7, 2.8, 0)), False)
sketch12.addGeometry(Part.LineSegment(Vector(-28.7, 2.8, 0), Vector(-27.1, 0, 0)), False)
sketch12.addGeometry(Part.LineSegment(Vector(-27.1, 0, 0), Vector(-28.7, -2.8, 0)), False)
sketch12.addGeometry(Part.LineSegment(Vector(-28.7, -2.8, 0), Vector(-31.9, -2.8, 0)), False)
sketch12.addConstraint(Sketcher.Constraint("Coincident", 0, 2, 1, 1))
sketch12.addConstraint(Sketcher.Constraint("Coincident", 1, 2, 2, 1))
sketch12.addConstraint(Sketcher.Constraint("Coincident", 2, 2, 3, 1))
sketch12.addConstraint(Sketcher.Constraint("Coincident", 3, 2, 4, 1))
sketch12.addConstraint(Sketcher.Constraint("Coincident", 4, 2, 5, 1))
sketch12.addConstraint(Sketcher.Constraint("Coincident", 5, 2, 0, 1))
sketch12.addConstraint(Sketcher.Constraint("Coincident", 6, 2, 7, 1))
sketch12.addConstraint(Sketcher.Constraint("Coincident", 7, 2, 8, 1))
sketch12.addConstraint(Sketcher.Constraint("Coincident", 8, 2, 9, 1))
sketch12.addConstraint(Sketcher.Constraint("Coincident", 9, 2, 10, 1))
sketch12.addConstraint(Sketcher.Constraint("Coincident", 10, 2, 11, 1))
sketch12.addConstraint(Sketcher.Constraint("Coincident", 11, 2, 6, 1))
sketch12.addConstraint(Sketcher.Constraint("Horizontal", 0))
sketch12.addConstraint(Sketcher.Constraint("Horizontal", 3))
sketch12.addConstraint(Sketcher.Constraint("Horizontal", 8))
sketch12.addConstraint(Sketcher.Constraint("Horizontal", 11))
sketch12.addConstraint(Sketcher.Constraint("Symmetric", 0, 2, 2, 2, -1))
sketch12.addConstraint(Sketcher.Constraint("Symmetric", 8, 2, 10, 2, -1))
sketch12.addConstraint(Sketcher.Constraint("PointOnObject", 1, 2, -1))
sketch12.addConstraint(Sketcher.Constraint("PointOnObject", 4, 2, -1))
sketch12.addConstraint(Sketcher.Constraint("PointOnObject", 6, 2, -1))
sketch12.addConstraint(Sketcher.Constraint("PointOnObject", 9, 2, -1))
sketch12.addConstraint(Sketcher.Constraint("Parallel", 1, 4))
sketch12.addConstraint(Sketcher.Constraint("Parallel", 2, 5))
sketch12.addConstraint(Sketcher.Constraint("Parallel", 4, 6))
sketch12.addConstraint(Sketcher.Constraint("Parallel", 5, 7))
sketch12.addConstraint(Sketcher.Constraint("Parallel", 6, 9))
sketch12.addConstraint(Sketcher.Constraint("Horizontal", 3, 2, 7, 2))
sketch12.addConstraint(Sketcher.Constraint("Equal", 3, 8))
sketch12.addConstraint(Sketcher.Constraint("Angle", 1, Q("120 deg")))
sketch12.addConstraint(Sketcher.Constraint("DistanceX", 2, 2, 7, 2, Q("30 mm")))
sketch12.addConstraint(Sketcher.Constraint("DistanceY", 0, 2, 2, 2, Q("5.5 mm")))
sketch12.addConstraint(Sketcher.Constraint("DistanceX", 0, 2, 0, 1, Q("3.175426 mm")))
sketch12.addConstraint(Sketcher.Constraint("DistanceX", 0, 2, -1, 1, Q("61.887681 mm")))
pocket7 = body.newObject("PartDesign::Pocket", "Pocket006")
pocket7.Profile = sketch12
pocket7.Length = 3
doc.recompute()

mirrored2 = body.newObject("PartDesign::Mirrored", "Mirrored001")
mirrored2.Originals = [pocket6, pocket7]
mirrored2.MirrorPlane = (doc.getObject("YZ_Plane"), [""])
body.Tip = mirrored2

# Sketch on XZ plane
sketch13 = body.newObject("Sketcher::SketchObject", "Sketch012")
sketch13.AttachmentSupport = (doc.getObject("XZ_Plane"), [""])
sketch13.MapMode = "FlatFace"
sketch13.addGeometry(Part.LineSegment(Vector(-10.3, 20, 0), Vector(10.3, 20, 0)), False)
sketch13.addGeometry(Part.LineSegment(Vector(10.3, 20, 0), Vector(10.3, 23.9, 0)), False)
sketch13.addGeometry(Part.ArcOfCircle(Part.Circle(Vector(0, 0, 0), Vector(0, 0, 1), 26), math.radians(67), math.radians(113)), False)
sketch13.addGeometry(Part.LineSegment(Vector(-10.3, 23.9, 0), Vector(-10.3, 20, 0)), False)
sketch13.addConstraint(Sketcher.Constraint("Coincident", 0, 2, 1, 1))
sketch13.addConstraint(Sketcher.Constraint("Coincident", 1, 2, 2, 1))
sketch13.addConstraint(Sketcher.Constraint("Coincident", 2, 2, 3, 1))
sketch13.addConstraint(Sketcher.Constraint("Coincident", 3, 2, 0, 1))
sketch13.addConstraint(Sketcher.Constraint("Horizontal", 0))
sketch13.addConstraint(Sketcher.Constraint("Vertical", 1))
sketch13.addConstraint(Sketcher.Constraint("Vertical", 3))
sketch13.addConstraint(Sketcher.Constraint("Coincident", 2, 3, -1, 1))
sketch13.addConstraint(Sketcher.Constraint("Horizontal", 1, 2, 2, 2))
sketch13.addConstraint(Sketcher.Constraint("Radius", 2, Q("26 mm")))
sketch13.addConstraint(Sketcher.Constraint("DistanceY", -1, 1, 0, 2, Q("20 mm")))
sketch13.addConstraint(Sketcher.Constraint("DistanceX", 0, 1, 0, 2, Q("20.68 mm")))
pocket8 = body.newObject("PartDesign::Pocket", "Pocket007")
pocket8.Profile = sketch13
pocket8.Length = 10

# Sketch on XZ plane
sketch14 = body.newObject("Sketcher::SketchObject", "Sketch013")
sketch14.AttachmentSupport = (doc.getObject("XZ_Plane"), [""])
sketch14.MapMode = "FlatFace"
sketch14.AttachmentOffset = App.Placement(Vector(0, 0, -2), App.Rotation())
sketch14.addGeometry(Part.LineSegment(Vector(-10.3, 19.4, 0), Vector(-10.3, 20, 0)), False)
sketch14.addGeometry(Part.LineSegment(Vector(-10.3, 20, 0), Vector(-9.2, 20, 0)), False)
sketch14.addGeometry(Part.ArcOfCircle(Part.Circle(Vector(0, 0, 0), Vector(0, 0, 1), 22), math.radians(114.62), math.radians(118.03)), False)
sketch14.addGeometry(Part.LineSegment(Vector(10.3, 20, 0), Vector(10.3, 19.4, 0)), False)
sketch14.addGeometry(Part.ArcOfCircle(Part.Circle(Vector(0, 0, 0), Vector(0, 0, 1), 22), math.radians(61.97), math.radians(65.38)), False)
sketch14.addGeometry(Part.LineSegment(Vector(9.2, 20, 0), Vector(10.3, 20, 0)), False)
sketch14.addConstraint(Sketcher.Constraint("Coincident", 0, 2, 1, 1))
sketch14.addConstraint(Sketcher.Constraint("Coincident", 1, 2, 2, 1))
sketch14.addConstraint(Sketcher.Constraint("Coincident", 2, 2, 0, 1))
sketch14.addConstraint(Sketcher.Constraint("Coincident", 3, 2, 4, 1))
sketch14.addConstraint(Sketcher.Constraint("Coincident", 4, 2, 5, 1))
sketch14.addConstraint(Sketcher.Constraint("Coincident", 5, 2, 3, 1))
sketch14.addConstraint(Sketcher.Constraint("Vertical", 0))
sketch14.addConstraint(Sketcher.Constraint("Horizontal", 1))
sketch14.addConstraint(Sketcher.Constraint("Vertical", 3))
sketch14.addConstraint(Sketcher.Constraint("Horizontal", 5))
sketch14.addConstraint(Sketcher.Constraint("Coincident", 2, 3, -1, 1))
sketch14.addConstraint(Sketcher.Constraint("Coincident", 4, 3, -1, 1))
sketch14.addConstraint(Sketcher.Constraint("Equal", 2, 4))
sketch14.addConstraint(Sketcher.Constraint("Symmetric", 0, 2, 5, 2, -2))
sketch14.addConstraint(Sketcher.Constraint("Radius", 2, Q("22.000001 mm")))
sketch14.addConstraint(Sketcher.Constraint("DistanceY", -1, 1, 0, 2, Q("20 mm")))
sketch14.addConstraint(Sketcher.Constraint("DistanceX", 0, 2, -1, 1, Q("10.34 mm")))
pocket9 = body.newObject("PartDesign::Pocket", "Pocket008")
pocket9.Profile = sketch14
pocket9.Length = 8

# Sketch on XZ plane
sketch15 = body.newObject("Sketcher::SketchObject", "Sketch014")
sketch15.AttachmentSupport = (doc.getObject("XZ_Plane"), [""])
sketch15.MapMode = "FlatFace"
sketch15.AttachmentOffset = App.Placement(Vector(0, 0, -50), App.Rotation())
sketch15.addGeometry(Part.LineSegment(Vector(-101, 7, 0), Vector(-101, -7, 0)), False)
sketch15.addGeometry(Part.LineSegment(Vector(-101, -7, 0), Vector(-75, -7, 0)), False)
sketch15.addGeometry(Part.LineSegment(Vector(-75, -7, 0), Vector(-75, 7, 0)), False)
sketch15.addGeometry(Part.LineSegment(Vector(-75, 7, 0), Vector(-101, 7, 0)), False)
sketch15.addGeometry(Part.LineSegment(Vector(75, 7, 0), Vector(75, -7, 0)), False)
sketch15.addGeometry(Part.LineSegment(Vector(75, -7, 0), Vector(101, -7, 0)), False)
sketch15.addGeometry(Part.LineSegment(Vector(101, -7, 0), Vector(101, 7, 0)), False)
sketch15.addGeometry(Part.LineSegment(Vector(101, 7, 0), Vector(75, 7, 0)), False)
sketch15.addConstraint(Sketcher.Constraint("Coincident", 0, 2, 1, 1))
sketch15.addConstraint(Sketcher.Constraint("Coincident", 1, 2, 2, 1))
sketch15.addConstraint(Sketcher.Constraint("Coincident", 2, 2, 3, 1))
sketch15.addConstraint(Sketcher.Constraint("Coincident", 3, 2, 0, 1))
sketch15.addConstraint(Sketcher.Constraint("Coincident", 4, 2, 5, 1))
sketch15.addConstraint(Sketcher.Constraint("Coincident", 5, 2, 6, 1))
sketch15.addConstraint(Sketcher.Constraint("Coincident", 6, 2, 7, 1))
sketch15.addConstraint(Sketcher.Constraint("Coincident", 7, 2, 4, 1))
sketch15.addConstraint(Sketcher.Constraint("Vertical", 0))
sketch15.addConstraint(Sketcher.Constraint("Horizontal", 1))
sketch15.addConstraint(Sketcher.Constraint("Vertical", 2))
sketch15.addConstraint(Sketcher.Constraint("Horizontal", 3))
sketch15.addConstraint(Sketcher.Constraint("Vertical", 4))
sketch15.addConstraint(Sketcher.Constraint("Horizontal", 5))
sketch15.addConstraint(Sketcher.Constraint("Vertical", 6))
sketch15.addConstraint(Sketcher.Constraint("Horizontal", 7))
sketch15.addConstraint(Sketcher.Constraint("Symmetric", 2, 2, 4, 2, -1, 1))
sketch15.addConstraint(Sketcher.Constraint("Symmetric", 0, 2, 6, 2, -1, 1))
sketch15.addConstraint(Sketcher.Constraint("Horizontal", 1, 2, 4, 2))
sketch15.addConstraint(Sketcher.Constraint("DistanceX", 1, 1, 1, 2, Q("26 mm")))
sketch15.addConstraint(Sketcher.Constraint("DistanceY", 0, 2, 0, 1, Q("14 mm")))
sketch15.addConstraint(Sketcher.Constraint("DistanceX", 0, 2, -1, 1, Q("101.299968 mm")))
pad6 = body.newObject("PartDesign::Pad", "Pad005")
pad6.Profile = sketch15
pad6.Length = 5
pad6.Reversed = True

# Sketch on XZ plane
sketch16 = body.newObject("Sketcher::SketchObject", "Sketch015")
sketch16.AttachmentSupport = (doc.getObject("XZ_Plane"), [""])
sketch16.MapMode = "FlatFace"
sketch16.AttachmentOffset = App.Placement(Vector(0, 0, -55), App.Rotation())
sketch16.addGeometry(Part.Circle(Vector(-90.299968, 0, 0), Vector(0, 0, 1), 1.65), False)
sketch16.addGeometry(Part.Circle(Vector(90.299968, 0, 0), Vector(0, 0, 1), 1.65), False)
sketch16.addConstraint(Sketcher.Constraint("Equal", 0, 1))
sketch16.addConstraint(Sketcher.Constraint("Symmetric", 0, 3, 1, 3, -1, 1))
sketch16.addConstraint(Sketcher.Constraint("PointOnObject", 0, 3, -1))
sketch16.addConstraint(Sketcher.Constraint("Diameter", 0, Q("3.3 mm")))
sketch16.addConstraint(Sketcher.Constraint("DistanceX", 0, 3, -1, 1, Q("90.299968 mm")))
pocket10 = body.newObject("PartDesign::Pocket", "Pocket009")
pocket10.Profile = sketch16
pocket10.Length = 5
pocket10.Reversed = True

# Sketch on XZ plane
sketch17 = body.newObject("Sketcher::SketchObject", "Sketch016")
sketch17.AttachmentSupport = (doc.getObject("XZ_Plane"), [""])
sketch17.MapMode = "FlatFace"
sketch17.AttachmentOffset = App.Placement(Vector(0, 0, -50), App.Rotation())
sketch17.addGeometry(Part.LineSegment(Vector(-91.9, 2.8, 0), Vector(-93.5, 0, 0)), False)
sketch17.addGeometry(Part.LineSegment(Vector(-93.5, 0, 0), Vector(-91.9, -2.8, 0)), False)
sketch17.addGeometry(Part.LineSegment(Vector(-91.9, -2.8, 0), Vector(-88.7, -2.8, 0)), False)
sketch17.addGeometry(Part.LineSegment(Vector(-88.7, -2.8, 0), Vector(-87.1, 0, 0)), False)
sketch17.addGeometry(Part.LineSegment(Vector(-87.1, 0, 0), Vector(-88.7, 2.8, 0)), False)
sketch17.addGeometry(Part.LineSegment(Vector(-88.7, 2.8, 0), Vector(-91.9, 2.8, 0)), False)
sketch17.addGeometry(Part.LineSegment(Vector(91.9, 2.8, 0), Vector(88.7, 2.8, 0)), False)
sketch17.addGeometry(Part.LineSegment(Vector(88.7, 2.8, 0), Vector(87.1, 0, 0)), False)
sketch17.addGeometry(Part.LineSegment(Vector(87.1, 0, 0), Vector(88.7, -2.8, 0)), False)
sketch17.addGeometry(Part.LineSegment(Vector(88.7, -2.8, 0), Vector(91.9, -2.8, 0)), False)
sketch17.addGeometry(Part.LineSegment(Vector(91.9, -2.8, 0), Vector(93.5, 0, 0)), False)
sketch17.addGeometry(Part.LineSegment(Vector(93.5, 0, 0), Vector(91.9, 2.8, 0)), False)
sketch17.addConstraint(Sketcher.Constraint("Coincident", 0, 2, 1, 1))
sketch17.addConstraint(Sketcher.Constraint("Coincident", 1, 2, 2, 1))
sketch17.addConstraint(Sketcher.Constraint("Coincident", 2, 2, 3, 1))
sketch17.addConstraint(Sketcher.Constraint("Coincident", 3, 2, 4, 1))
sketch17.addConstraint(Sketcher.Constraint("Coincident", 4, 2, 5, 1))
sketch17.addConstraint(Sketcher.Constraint("Coincident", 5, 2, 0, 1))
sketch17.addConstraint(Sketcher.Constraint("Coincident", 6, 2, 7, 1))
sketch17.addConstraint(Sketcher.Constraint("Coincident", 7, 2, 8, 1))
sketch17.addConstraint(Sketcher.Constraint("Coincident", 8, 2, 9, 1))
sketch17.addConstraint(Sketcher.Constraint("Coincident", 9, 2, 10, 1))
sketch17.addConstraint(Sketcher.Constraint("Coincident", 10, 2, 11, 1))
sketch17.addConstraint(Sketcher.Constraint("Coincident", 11, 2, 6, 1))
sketch17.addConstraint(Sketcher.Constraint("Horizontal", 2))
sketch17.addConstraint(Sketcher.Constraint("Horizontal", 5))
sketch17.addConstraint(Sketcher.Constraint("Horizontal", 6))
sketch17.addConstraint(Sketcher.Constraint("Horizontal", 9))
sketch17.addConstraint(Sketcher.Constraint("Symmetric", 2, 2, 6, 2, -1, 1))
sketch17.addConstraint(Sketcher.Constraint("Symmetric", 3, 2, 7, 2, -1, 1))
sketch17.addConstraint(Sketcher.Constraint("Symmetric", 4, 2, 8, 2, -1, 1))
sketch17.addConstraint(Sketcher.Constraint("Symmetric", 0, 2, 10, 2, -1, 1))
sketch17.addConstraint(Sketcher.Constraint("Symmetric", 4, 2, 6, 2, -2))
sketch17.addConstraint(Sketcher.Constraint("PointOnObject", 0, 2, -1))
sketch17.addConstraint(Sketcher.Constraint("PointOnObject", 3, 2, -1))
sketch17.addConstraint(Sketcher.Constraint("Parallel", 0, 3))
sketch17.addConstraint(Sketcher.Constraint("Parallel", 1, 4))
sketch17.addConstraint(Sketcher.Constraint("Parallel", 7, 10))
sketch17.addConstraint(Sketcher.Constraint("Parallel", 8, 11))
sketch17.addConstraint(Sketcher.Constraint("Angle", 0, Q("-120 deg")))
sketch17.addConstraint(Sketcher.Constraint("DistanceY", 2, 2, 4, 2, Q("5.5 mm")))
sketch17.addConstraint(Sketcher.Constraint("DistanceX", 2, 1, 2, 2, Q("3.175426 mm")))
sketch17.addConstraint(Sketcher.Constraint("DistanceX", 1, 2, -1, 1, Q("91.887681 mm")))
pocket11 = body.newObject("PartDesign::Pocket", "Pocket010")
pocket11.Profile = sketch17
pocket11.Length = 3

# Sketch on XZ plane
sketch18 = body.newObject("Sketcher::SketchObject", "Sketch017")
sketch18.AttachmentSupport = (doc.getObject("XZ_Plane"), [""])
sketch18.MapMode = "FlatFace"
sketch18.AttachmentOffset = App.Placement(Vector(0, 0, -50), App.Rotation())
sketch18.addGeometry(Part.LineSegment(Vector(-104.299968, 7, 0), Vector(-104.299968, -7, 0)), False)
sketch18.addGeometry(Part.LineSegment(Vector(-104.299968, -7, 0), Vector(-101.299968, -7, 0)), False)
sketch18.addGeometry(Part.LineSegment(Vector(-101.299968, -7, 0), Vector(-101.299968, 7, 0)), False)
sketch18.addGeometry(Part.LineSegment(Vector(-101.299968, 7, 0), Vector(-104.299968, 7, 0)), False)
sketch18.addGeometry(Part.LineSegment(Vector(101.299968, 7, 0), Vector(101.299968, -7, 0)), False)
sketch18.addGeometry(Part.LineSegment(Vector(101.299968, -7, 0), Vector(104.299968, -7, 0)), False)
sketch18.addGeometry(Part.LineSegment(Vector(104.299968, -7, 0), Vector(104.299968, 7, 0)), False)
sketch18.addGeometry(Part.LineSegment(Vector(104.299968, 7, 0), Vector(101.299968, 7, 0)), False)
sketch18.addConstraint(Sketcher.Constraint("Coincident", 0, 2, 1, 1))
sketch18.addConstraint(Sketcher.Constraint("Coincident", 1, 2, 2, 1))
sketch18.addConstraint(Sketcher.Constraint("Coincident", 2, 2, 3, 1))
sketch18.addConstraint(Sketcher.Constraint("Coincident", 3, 2, 0, 1))
sketch18.addConstraint(Sketcher.Constraint("Coincident", 4, 2, 5, 1))
sketch18.addConstraint(Sketcher.Constraint("Coincident", 5, 2, 6, 1))
sketch18.addConstraint(Sketcher.Constraint("Coincident", 6, 2, 7, 1))
sketch18.addConstraint(Sketcher.Constraint("Coincident", 7, 2, 4, 1))
sketch18.addConstraint(Sketcher.Constraint("Vertical", 0))
sketch18.addConstraint(Sketcher.Constraint("Horizontal", 1))
sketch18.addConstraint(Sketcher.Constraint("Vertical", 2))
sketch18.addConstraint(Sketcher.Constraint("Horizontal", 3))
sketch18.addConstraint(Sketcher.Constraint("Vertical", 4))
sketch18.addConstraint(Sketcher.Constraint("Horizontal", 5))
sketch18.addConstraint(Sketcher.Constraint("Vertical", 6))
sketch18.addConstraint(Sketcher.Constraint("Horizontal", 7))
sketch18.addConstraint(Sketcher.Constraint("Symmetric", 2, 2, 4, 2, -1, 1))
sketch18.addConstraint(Sketcher.Constraint("Symmetric", 0, 2, 6, 2, -1, 1))
sketch18.addConstraint(Sketcher.Constraint("Horizontal", 1, 2, 4, 2))
sketch18.addConstraint(Sketcher.Constraint("DistanceX", 1, 1, 1, 2, Q("3 mm")))
sketch18.addConstraint(Sketcher.Constraint("DistanceY", 0, 2, 0, 1, Q("14 mm")))
sketch18.addConstraint(Sketcher.Constraint("DistanceX", 0, 2, -1, 1, Q("104.299968 mm")))
pad7 = body.newObject("PartDesign::Pad", "Pad006")
pad7.Profile = sketch18
pad7.Length = 14
pad7.Reversed = True

doc.recompute()
